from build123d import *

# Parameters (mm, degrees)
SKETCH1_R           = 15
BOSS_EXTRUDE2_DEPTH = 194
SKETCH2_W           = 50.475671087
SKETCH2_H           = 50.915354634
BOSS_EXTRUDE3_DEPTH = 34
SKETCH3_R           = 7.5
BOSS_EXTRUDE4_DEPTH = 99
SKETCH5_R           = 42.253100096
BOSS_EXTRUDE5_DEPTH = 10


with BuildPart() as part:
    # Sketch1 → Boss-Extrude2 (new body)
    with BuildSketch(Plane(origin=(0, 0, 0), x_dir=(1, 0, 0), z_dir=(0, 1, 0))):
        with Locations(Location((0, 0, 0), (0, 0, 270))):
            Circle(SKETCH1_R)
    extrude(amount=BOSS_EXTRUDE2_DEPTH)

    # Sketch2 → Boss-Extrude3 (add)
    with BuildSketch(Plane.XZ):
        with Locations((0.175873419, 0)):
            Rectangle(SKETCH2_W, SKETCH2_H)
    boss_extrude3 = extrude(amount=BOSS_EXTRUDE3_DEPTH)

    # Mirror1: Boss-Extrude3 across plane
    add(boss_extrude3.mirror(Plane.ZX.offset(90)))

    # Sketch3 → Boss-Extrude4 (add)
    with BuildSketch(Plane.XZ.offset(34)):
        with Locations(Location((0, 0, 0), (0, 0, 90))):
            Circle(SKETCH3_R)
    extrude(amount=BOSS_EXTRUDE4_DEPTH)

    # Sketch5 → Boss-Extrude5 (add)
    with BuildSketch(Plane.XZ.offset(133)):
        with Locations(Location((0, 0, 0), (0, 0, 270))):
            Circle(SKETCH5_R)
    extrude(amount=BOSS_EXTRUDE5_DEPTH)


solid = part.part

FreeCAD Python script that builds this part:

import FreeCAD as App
import Part
import Sketcher

doc = App.newDocument("Part")
body = doc.addObject("PartDesign::Body", "Body")

sketch1 = doc.addObject("Sketcher::SketchObject", "Sketch")
body.addObject(sketch1)
sketch1.AttachmentSupport = (doc.XZ_Plane, [""])
sketch1.MapMode = "FlatFace"
sketch1.addGeometry(Part.Circle(App.Vector(0, 0, 0), App.Vector(0, 0, 1), 15), False)
sketch1.addConstraint([
    Sketcher.Constraint("Coincident", 0, 3, -1, 1),
    Sketcher.Constraint("Diameter", 0, 30.0),
])
pad1 = doc.addObject("PartDesign::Pad", "Pad")
body.addObject(pad1)
pad1.Profile = sketch1
pad1.Length = 194
pad1.Reversed = True

sketch2 = doc.addObject("Sketcher::SketchObject", "Sketch001")
body.addObject(sketch2)
sketch2.AttachmentSupport = (doc.XZ_Plane, [""])
sketch2.MapMode = "FlatFace"
sketch2.addGeometry([
    Part.LineSegment(App.Vector(-25, 25, 0), App.Vector(-25, -25, 0)),
    Part.LineSegment(App.Vector(-25, -25, 0), App.Vector(25, -25, 0)),
    Part.LineSegment(App.Vector(25, -25, 0), App.Vector(25, 25, 0)),
    Part.LineSegment(App.Vector(25, 25, 0), App.Vector(-25, 25, 0)),
], False)
sketch2.addConstraint([
    Sketcher.Constraint("Coincident", 0, 2, 1, 1),
    Sketcher.Constraint("Coincident", 1, 2, 2, 1),
    Sketcher.Constraint("Coincident", 2, 2, 3, 1),
    Sketcher.Constraint("Coincident", 3, 2, 0, 1),
    Sketcher.Constraint("Vertical", 0),
    Sketcher.Constraint("Horizontal", 1),
    Sketcher.Constraint("Vertical", 2),
    Sketcher.Constraint("Horizontal", 3),
    Sketcher.Constraint("DistanceX", 1, 1, 1, 2, 50.475671),
    Sketcher.Constraint("DistanceY", 0, 2, 0, 1, 50.915355),
    Sketcher.Constraint("DistanceX", -1, 1, 1, 2, 25.413709),
    Sketcher.Constraint("DistanceY", 0, 2, -1, 1, 25.457677),
])
pad2 = doc.addObject("PartDesign::Pad", "Pad001")
body.addObject(pad2)
pad2.Profile = sketch2
pad2.Length = 34
doc.recompute()

datumplane = doc.addObject("PartDesign::Plane", "DatumPlane")
body.addObject(datumplane)
datumplane.AttachmentSupport = (doc.XZ_Plane, [""])
datumplane.MapMode = "FlatFace"
datumplane.AttachmentOffset = App.Placement(App.Vector(0, 0, -90), App.Rotation())
mirrored = doc.addObject("PartDesign::Mirrored", "Mirrored")
body.addObject(mirrored)
mirrored.Originals = [pad2]
mirrored.MirrorPlane = (datumplane, [""])
body.Tip = mirrored

sketch3 = doc.addObject("Sketcher::SketchObject", "Sketch002")
body.addObject(sketch3)
sketch3.AttachmentSupport = (doc.XZ_Plane, [""])
sketch3.MapMode = "FlatFace"
sketch3.AttachmentOffset = App.Placement(App.Vector(0, 0, 34), App.Rotation())
sketch3.addGeometry(Part.Circle(App.Vector(0, 0, 0), App.Vector(0, 0, 1), 8), False)
sketch3.addConstraint([
    Sketcher.Constraint("Coincident", 0, 3, -1, 1),
    Sketcher.Constraint("Diameter", 0, 15.0),
])
pad3 = doc.addObject("PartDesign::Pad", "Pad002")
body.addObject(pad3)
pad3.Profile = sketch3
pad3.Length = 99

sketch4 = doc.addObject("Sketcher::SketchObject", "Sketch003")
body.addObject(sketch4)
sketch4.AttachmentSupport = (doc.XZ_Plane, [""])
sketch4.MapMode = "FlatFace"
sketch4.AttachmentOffset = App.Placement(App.Vector(0, 0, 133), App.Rotation())
sketch4.addGeometry(Part.Circle(App.Vector(0, 0, 0), App.Vector(0, 0, 1), 42), False)
sketch4.addConstraint([
    Sketcher.Constraint("Coincident", 0, 3, -1, 1),
    Sketcher.Constraint("Diameter", 0, 84.5062),
])
pad4 = doc.addObject("PartDesign::Pad", "Pad003")
body.addObject(pad4)
pad4.Profile = sketch4
pad4.Length = 10

doc.recompute()
